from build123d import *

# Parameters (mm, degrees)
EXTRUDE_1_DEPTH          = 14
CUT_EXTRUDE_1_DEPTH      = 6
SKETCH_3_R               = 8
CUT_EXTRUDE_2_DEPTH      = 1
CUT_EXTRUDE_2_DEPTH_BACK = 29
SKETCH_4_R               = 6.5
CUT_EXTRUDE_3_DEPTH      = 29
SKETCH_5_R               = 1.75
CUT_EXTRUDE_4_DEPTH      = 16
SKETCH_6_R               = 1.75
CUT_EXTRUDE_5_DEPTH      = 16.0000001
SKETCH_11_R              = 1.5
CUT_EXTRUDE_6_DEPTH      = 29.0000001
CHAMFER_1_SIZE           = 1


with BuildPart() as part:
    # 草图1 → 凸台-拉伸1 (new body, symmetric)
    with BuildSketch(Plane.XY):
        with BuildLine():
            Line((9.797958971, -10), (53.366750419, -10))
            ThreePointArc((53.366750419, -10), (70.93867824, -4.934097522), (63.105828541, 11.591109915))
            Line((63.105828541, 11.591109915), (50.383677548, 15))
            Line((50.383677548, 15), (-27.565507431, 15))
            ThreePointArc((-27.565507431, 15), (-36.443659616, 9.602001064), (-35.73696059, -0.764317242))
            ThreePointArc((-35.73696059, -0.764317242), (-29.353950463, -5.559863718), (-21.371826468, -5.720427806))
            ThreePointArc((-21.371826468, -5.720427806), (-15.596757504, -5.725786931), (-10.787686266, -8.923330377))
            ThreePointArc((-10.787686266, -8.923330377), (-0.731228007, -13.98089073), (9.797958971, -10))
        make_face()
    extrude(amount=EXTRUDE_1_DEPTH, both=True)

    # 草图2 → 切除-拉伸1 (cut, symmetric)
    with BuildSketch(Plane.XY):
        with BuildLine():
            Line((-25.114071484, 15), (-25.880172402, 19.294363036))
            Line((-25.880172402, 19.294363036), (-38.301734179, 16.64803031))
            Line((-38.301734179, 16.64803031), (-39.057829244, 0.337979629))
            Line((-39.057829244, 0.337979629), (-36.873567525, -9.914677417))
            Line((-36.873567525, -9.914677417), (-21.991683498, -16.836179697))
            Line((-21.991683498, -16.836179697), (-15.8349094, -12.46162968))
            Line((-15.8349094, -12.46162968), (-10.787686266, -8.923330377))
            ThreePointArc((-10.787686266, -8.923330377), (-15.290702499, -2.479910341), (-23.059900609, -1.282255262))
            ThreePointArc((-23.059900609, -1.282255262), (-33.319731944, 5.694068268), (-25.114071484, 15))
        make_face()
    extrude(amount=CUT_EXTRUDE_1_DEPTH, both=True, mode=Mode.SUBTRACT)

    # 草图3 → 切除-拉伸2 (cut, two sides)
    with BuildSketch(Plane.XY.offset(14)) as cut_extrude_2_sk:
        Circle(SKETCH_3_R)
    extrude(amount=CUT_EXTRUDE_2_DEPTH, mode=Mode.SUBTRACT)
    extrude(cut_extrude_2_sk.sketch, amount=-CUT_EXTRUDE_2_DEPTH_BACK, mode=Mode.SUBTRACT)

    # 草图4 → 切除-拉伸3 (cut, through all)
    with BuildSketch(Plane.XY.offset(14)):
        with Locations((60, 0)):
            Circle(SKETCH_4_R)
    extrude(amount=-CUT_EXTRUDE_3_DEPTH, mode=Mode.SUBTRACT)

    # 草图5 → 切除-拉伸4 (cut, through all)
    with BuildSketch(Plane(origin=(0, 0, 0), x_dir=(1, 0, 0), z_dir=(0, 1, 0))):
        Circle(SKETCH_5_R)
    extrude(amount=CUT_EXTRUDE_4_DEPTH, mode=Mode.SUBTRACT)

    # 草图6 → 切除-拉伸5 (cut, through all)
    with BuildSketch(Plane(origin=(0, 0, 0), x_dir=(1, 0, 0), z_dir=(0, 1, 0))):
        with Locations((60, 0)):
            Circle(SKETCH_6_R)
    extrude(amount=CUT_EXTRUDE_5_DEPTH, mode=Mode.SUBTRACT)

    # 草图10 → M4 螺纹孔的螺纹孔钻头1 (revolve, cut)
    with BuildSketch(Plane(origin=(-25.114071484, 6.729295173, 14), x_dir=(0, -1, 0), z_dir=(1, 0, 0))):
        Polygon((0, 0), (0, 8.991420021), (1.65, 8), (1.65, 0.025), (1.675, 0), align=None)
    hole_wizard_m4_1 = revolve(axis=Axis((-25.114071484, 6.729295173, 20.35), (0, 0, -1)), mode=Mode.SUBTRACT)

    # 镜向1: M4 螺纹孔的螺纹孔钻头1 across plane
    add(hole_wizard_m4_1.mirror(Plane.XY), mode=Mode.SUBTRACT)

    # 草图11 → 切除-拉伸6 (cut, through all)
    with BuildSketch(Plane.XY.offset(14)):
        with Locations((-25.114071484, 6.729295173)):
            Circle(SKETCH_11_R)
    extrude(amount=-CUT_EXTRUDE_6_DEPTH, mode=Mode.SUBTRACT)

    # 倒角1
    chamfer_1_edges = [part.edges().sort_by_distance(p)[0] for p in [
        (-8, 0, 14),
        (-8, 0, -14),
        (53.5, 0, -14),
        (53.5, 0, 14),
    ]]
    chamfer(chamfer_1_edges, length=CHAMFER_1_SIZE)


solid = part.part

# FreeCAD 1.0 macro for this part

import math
import FreeCAD as App
import Part
import Sketcher

V = App.Vector
Q = App.Units.Quantity


def edges_at(feature, points):
    """Names of the edges that pass closest to the given points."""
    edges = feature.Shape.Edges
    near = lambda p: min(range(len(edges)), key=lambda i: edges[i].distToShape(Part.Vertex(*p))[0])
    return sorted({f"Edge{near(p) + 1}" for p in points})


def add_polygon(sketch, points):
    """Adds a closed chain of lines whose ends are joined by coincident constraints."""
    first, n = sketch.GeometryCount, len(points)
    for a, b in zip(points, points[1:] + points[:1]):
        sketch.addGeometry(Part.LineSegment(App.Vector(*a, 0), App.Vector(*b, 0)), False)
    for i in range(n):
        sketch.addConstraint(Sketcher.Constraint("Coincident", first + i, 2, first + (i + 1) % n, 1))

doc = App.newDocument("Part")
body = doc.addObject("PartDesign::Body", "Body")

sketch1 = body.newObject("Sketcher::SketchObject", "Sketch")
sketch1.AttachmentSupport = (doc.getObject("XY_Plane"), [""])
sketch1.MapMode = "FlatFace"
sketch1.addGeometry(Part.LineSegment(V(9.797959, -10, 0), V(53.36675, -10, 0)), False)
sketch1.addGeometry(Part.ArcOfCircle(Part.Circle(V(60, 0, 0), V(0, 0, 1), 12), math.radians(-123.55731), math.radians(75)), False)
sketch1.addGeometry(Part.LineSegment(V(63.105829, 11.59111, 0), V(50.383678, 15, 0)), False)
sketch1.addGeometry(Part.LineSegment(V(50.383678, 15, 0), V(-27.565507, 15, 0)), False)
sketch1.addGeometry(Part.ArcOfCircle(Part.Circle(V(-27.565507, 5, 0), V(0, 0, 1), 10), math.radians(90), math.radians(215.199959)), False)
sketch1.addGeometry(Part.ArcOfCircle(Part.Circle(V(-25.114071, 6.729295, 0), V(0, 0, 1), 13), math.radians(-144.800042), math.radians(-73.26982)), False)
sketch1.addGeometry(Part.ArcOfCircle(Part.Circle(V(-18.493176, -15.297138, 0), V(0, 0, 1), 10), math.radians(39.596784), math.radians(106.73018)), False)
sketch1.addGeometry(Part.ArcOfCircle(Part.Circle(V(0, 0, 0), V(0, 0, 1), 14), math.radians(-140.403216), math.radians(-45.584691)), False)
sketch1.addConstraint(Sketcher.Constraint("Coincident", 0, 2, 1, 1))
sketch1.addConstraint(Sketcher.Constraint("Tangent", 1, 2, 2, 1))
sketch1.addConstraint(Sketcher.Constraint("Coincident", 2, 2, 3, 1))
sketch1.addConstraint(Sketcher.Constraint("Tangent", 3, 2, 4, 1))
sketch1.addConstraint(Sketcher.Constraint("Tangent", 4, 2, 5, 1))
sketch1.addConstraint(Sketcher.Constraint("Tangent", 5, 2, 6, 2))
sketch1.addConstraint(Sketcher.Constraint("Tangent", 6, 1, 7, 1))
sketch1.addConstraint(Sketcher.Constraint("Coincident", 7, 2, 0, 1))
sketch1.addConstraint(Sketcher.Constraint("Horizontal", 0))
sketch1.addConstraint(Sketcher.Constraint("Horizontal", 3))
sketch1.addConstraint(Sketcher.Constraint("Coincident", 7, 3, -1, 1))
sketch1.addConstraint(Sketcher.Constraint("Equal", 4, 6))
sketch1.addConstraint(Sketcher.Constraint("PointOnObject", 1, 3, -1))
sketch1.addConstraint(Sketcher.Constraint("Radius", 1, Q("12 mm")))
sketch1.addConstraint(Sketcher.Constraint("Radius", 4, Q("10 mm")))
sketch1.addConstraint(Sketcher.Constraint("Radius", 5, Q("13 mm")))
sketch1.addConstraint(Sketcher.Constraint("Radius", 7, Q("14 mm")))
sketch1.addConstraint(Sketcher.Constraint("Angle", 2, Q("165 deg")))
sketch1.addConstraint(Sketcher.Constraint("DistanceX", -1, 1, 1, 3, Q("60 mm")))
sketch1.addConstraint(Sketcher.Constraint("DistanceY", -1, 1, 4, 3, Q("5 mm")))
sketch1.addConstraint(Sketcher.Constraint("DistanceY", 0, 2, -1, 1, Q("10 mm")))
sketch1.addConstraint(Sketcher.Constraint("DistanceX", 5, 3, 1, 2, Q("88.2199 mm")))
sketch1.addConstraint(Sketcher.Constraint("DistanceX", 3, 2, 3, 1, Q("77.949185 mm")))
pad1 = body.newObject("PartDesign::Pad", "Pad")
pad1.Profile = sketch1
pad1.Length = 28
pad1.Midplane = True

sketch2 = body.newObject("Sketcher::SketchObject", "Sketch001")
sketch2.AttachmentSupport = (doc.getObject("XY_Plane"), [""])
sketch2.MapMode = "FlatFace"
sketch2.addGeometry(Part.LineSegment(V(-25.114071, 15, 0), V(-25.880172, 19.294363, 0)), False)
sketch2.addGeometry(Part.LineSegment(V(-25.880172, 19.294363, 0), V(-38.301734, 16.64803, 0)), False)
sketch2.addGeometry(Part.LineSegment(V(-38.301734, 16.64803, 0), V(-39.057829, 0.33798, 0)), False)
sketch2.addGeometry(Part.LineSegment(V(-39.057829, 0.33798, 0), V(-36.873568, -9.914677, 0)), False)
sketch2.addGeometry(Part.LineSegment(V(-36.873568, -9.914677, 0), V(-21.991683, -16.83618, 0)), False)
sketch2.addGeometry(Part.LineSegment(V(-21.991683, -16.83618, 0), V(-15.834909, -12.46163, 0)), False)
sketch2.addGeometry(Part.LineSegment(V(-15.834909, -12.46163, 0), V(-10.787686, -8.92333, 0)), False)
sketch2.addGeometry(Part.ArcOfCircle(Part.Circle(V(-20.57623, -10.968915, 0), V(0, 0, 1), 10), math.radians(11.803654), math.radians(104.380906)), False)
sketch2.addGeometry(Part.ArcOfCircle(Part.Circle(V(-25.114071, 6.729295, 0), V(0, 0, 1), 8.270705), math.radians(90), math.radians(284.380906)), False)
sketch2.addConstraint(Sketcher.Constraint("Coincident", 0, 2, 1, 1))
sketch2.addConstraint(Sketcher.Constraint("Coincident", 1, 2, 2, 1))
sketch2.addConstraint(Sketcher.Constraint("Coincident", 2, 2, 3, 1))
sketch2.addConstraint(Sketcher.Constraint("Coincident", 3, 2, 4, 1))
sketch2.addConstraint(Sketcher.Constraint("Coincident", 4, 2, 5, 1))
sketch2.addConstraint(Sketcher.Constraint("Coincident", 5, 2, 6, 1))
sketch2.addConstraint(Sketcher.Constraint("Coincident", 6, 2, 7, 1))
sketch2.addConstraint(Sketcher.Constraint("Tangent", 7, 2, 8, 2))
sketch2.addConstraint(Sketcher.Constraint("Coincident", 8, 1, 0, 1))
sketch2.addConstraint(Sketcher.Constraint("Perpendicular", 1, 3))
sketch2.addConstraint(Sketcher.Constraint("Radius", 7, Q("10 mm")))
sketch2.addConstraint(Sketcher.Constraint("DistanceY", -1, 1, 8, 1, Q("15 mm")))
sketch2.addConstraint(Sketcher.Constraint("Radius", 8, Q("8.270705 mm")))
sketch2.addConstraint(Sketcher.Constraint("DistanceX", 7, 2, -1, 1, Q("23.059901 mm")))
sketch2.addConstraint(Sketcher.Constraint("DistanceX", 0, 2, 8, 3, Q("0.766101 mm")))
sketch2.addConstraint(Sketcher.Constraint("DistanceX", 2, 2, 7, 3, Q("18.4816 mm")))
sketch2.addConstraint(Sketcher.Constraint("DistanceY", 5, 2, 6, 2, Q("3.538299 mm")))
sketch2.addConstraint(Sketcher.Constraint("DistanceX", 0, 2, 8, 1, Q("0.766101 mm")))
sketch2.addConstraint(Sketcher.Constraint("Distance", 4, Q("16.412729 mm")))
sketch2.addConstraint(Sketcher.Constraint("Distance", 6, Q("6.163929 mm")))
sketch2.addConstraint(Sketcher.Constraint("DistanceX", 7, 3, -1, 1, Q("20.57623 mm")))
sketch2.addConstraint(Sketcher.Constraint("DistanceY", -1, 1, 1, 2, Q("16.64803 mm")))
sketch2.addConstraint(Sketcher.Constraint("DistanceY", -1, 1, 2, 2, Q("0.33798 mm")))
sketch2.addConstraint(Sketcher.Constraint("DistanceY", 4, 2, -1, 1, Q("16.83618 mm")))
sketch2.addConstraint(Sketcher.Constraint("DistanceX", 5, 2, -1, 1, Q("15.834909 mm")))
sketch2.addConstraint(Sketcher.Constraint("DistanceY", 7, 3, 0, 2, Q("30.263278 mm")))
sketch2.addConstraint(Sketcher.Constraint("DistanceX", 1, 2, 0, 2, Q("12.421562 mm")))
sketch2.addConstraint(Sketcher.Constraint("DistanceX", 2, 2, 3, 2, Q("2.184262 mm")))
pocket1 = body.newObject("PartDesign::Pocket", "Pocket")
pocket1.Profile = sketch2
pocket1.Length = 12
pocket1.Midplane = True

sketch3 = body.newObject("Sketcher::SketchObject", "Sketch002")
sketch3.AttachmentSupport = (doc.getObject("XY_Plane"), [""])
sketch3.MapMode = "FlatFace"
sketch3.AttachmentOffset = App.Placement(V(0, 0, 14), App.Rotation())
sketch3.addGeometry(Part.Circle(V(0, 0, 0), V(0, 0, 1), 8), False)
sketch3.addConstraint(Sketcher.Constraint("Coincident", 0, 3, -1, 1))
sketch3.addConstraint(Sketcher.Constraint("Diameter", 0, Q("16 mm")))
pocket2 = body.newObject("PartDesign::Pocket", "Pocket001")
pocket2.Profile = sketch3
pocket2.Type = "ThroughAll"
pocket2.Midplane = True

sketch4 = body.newObject("Sketcher::SketchObject", "Sketch003")
sketch4.AttachmentSupport = (doc.getObject("XY_Plane"), [""])
sketch4.MapMode = "FlatFace"
sketch4.AttachmentOffset = App.Placement(V(0, 0, 14), App.Rotation())
sketch4.addGeometry(Part.Circle(V(60, 0, 0), V(0, 0, 1), 6.5), False)
sketch4.addConstraint(Sketcher.Constraint("PointOnObject", 0, 3, -1))
sketch4.addConstraint(Sketcher.Constraint("Diameter", 0, Q("13 mm")))
sketch4.addConstraint(Sketcher.Constraint("DistanceX", -1, 1, 0, 3, Q("60 mm")))
pocket3 = body.newObject("PartDesign::Pocket", "Pocket002")
pocket3.Profile = sketch4
pocket3.Type = "ThroughAll"

sketch5 = body.newObject("Sketcher::SketchObject", "Sketch004")
sketch5.AttachmentSupport = (doc.getObject("XZ_Plane"), [""])
sketch5.MapMode = "FlatFace"
sketch5.addGeometry(Part.Circle(V(0, 0, 0), V(0, 0, 1), 1.75), False)
sketch5.addConstraint(Sketcher.Constraint("Coincident", 0, 3, -1, 1))
sketch5.addConstraint(Sketcher.Constraint("Diameter", 0, Q("3.5 mm")))
pocket4 = body.newObject("PartDesign::Pocket", "Pocket003")
pocket4.Profile = sketch5
pocket4.Type = "ThroughAll"

sketch6 = body.newObject("Sketcher::SketchObject", "Sketch005")
sketch6.AttachmentSupport = (doc.getObject("XZ_Plane"), [""])
sketch6.MapMode = "FlatFace"
sketch6.addGeometry(Part.Circle(V(60, 0, 0), V(0, 0, 1), 1.75), False)
sketch6.addConstraint(Sketcher.Constraint("PointOnObject", 0, 3, -1))
sketch6.addConstraint(Sketcher.Constraint("Diameter", 0, Q("3.5 mm")))
sketch6.addConstraint(Sketcher.Constraint("DistanceX", -1, 1, 0, 3, Q("60 mm")))
pocket5 = body.newObject("PartDesign::Pocket", "Pocket004")
pocket5.Profile = sketch6
pocket5.Type = "ThroughAll"

sketch7 = body.newObject("Sketcher::SketchObject", "Sketch006")
sketch7.AttachmentSupport = (doc.getObject("YZ_Plane"), [""])
sketch7.MapMode = "FlatFace"
sketch7.AttachmentOffset = App.Placement(V(0, 0, -25.114071), App.Rotation())
add_polygon(sketch7, [(6.729295, 5.00858), (6.729295, 14), (5.054295, 14), (5.079295, 13.975), (5.079295, 6)])
sketch7.addGeometry(Part.LineSegment(V(6.729295, 14, 0), V(6.729295, 5.00858, 0)), True)
sketch7.addConstraint(Sketcher.Constraint("Vertical", 0))
sketch7.addConstraint(Sketcher.Constraint("Horizontal", 1))
sketch7.addConstraint(Sketcher.Constraint("Vertical", 3))
sketch7.addConstraint(Sketcher.Constraint("Vertical", 5))
sketch7.addConstraint(Sketcher.Constraint("Coincident", 5, 1, 0, 2))
sketch7.addConstraint(Sketcher.Constraint("Equal", 0, 5))
sketch7.addConstraint(Sketcher.Constraint("Angle", 2, Q("-45 deg")))
sketch7.addConstraint(Sketcher.Constraint("Angle", 4, Q("-31 deg")))
sketch7.addConstraint(Sketcher.Constraint("DistanceY", -1, 1, 0, 2, Q("14 mm")))
sketch7.addConstraint(Sketcher.Constraint("DistanceY", -1, 1, 3, 2, Q("6 mm")))
sketch7.addConstraint(Sketcher.Constraint("DistanceX", 1, 2, 1, 1, Q("1.675 mm")))
sketch7.addConstraint(Sketcher.Constraint("DistanceY", 3, 2, 3, 1, Q("7.975 mm")))
sketch7.addConstraint(Sketcher.Constraint("DistanceX", -1, 1, 0, 2, Q("6.729295 mm")))
groove = body.newObject("PartDesign::Groove", "Groove")
groove.Profile = sketch7
groove.ReferenceAxis = (sketch7, ["Axis0"])
groove.Angle = 360
doc.recompute()

mirrored = body.newObject("PartDesign::Mirrored", "Mirrored")
mirrored.Originals = [groove]
mirrored.MirrorPlane = (doc.getObject("XY_Plane"), [""])
body.Tip = mirrored

sketch8 = body.newObject("Sketcher::SketchObject", "Sketch007")
sketch8.AttachmentSupport = (doc.getObject("XY_Plane"), [""])
sketch8.MapMode = "FlatFace"
sketch8.AttachmentOffset = App.Placement(V(0, 0, 14), App.Rotation())
sketch8.addGeometry(Part.Circle(V(-25.114071, 6.729295, 0), V(0, 0, 1), 1.5), False)
sketch8.addConstraint(Sketcher.Constraint("Diameter", 0, Q("3 mm")))
sketch8.addConstraint(Sketcher.Constraint("DistanceX", 0, 3, -1, 1, Q("25.114071 mm")))
sketch8.addConstraint(Sketcher.Constraint("DistanceY", -1, 1, 0, 3, Q("6.729295 mm")))
pocket6 = body.newObject("PartDesign::Pocket", "Pocket005")
pocket6.Profile = sketch8
pocket6.Type = "ThroughAll"
doc.recompute()

chamfer = body.newObject("PartDesign::Chamfer", "Chamfer")
chamfer.Base = (pocket6, edges_at(pocket6, [
    (-8, 0, 14),
    (-8, 0, -14),
    (53.5, 0, -14),
    (53.5, 0, 14),
]))
chamfer.Size = 1

doc.recompute()
